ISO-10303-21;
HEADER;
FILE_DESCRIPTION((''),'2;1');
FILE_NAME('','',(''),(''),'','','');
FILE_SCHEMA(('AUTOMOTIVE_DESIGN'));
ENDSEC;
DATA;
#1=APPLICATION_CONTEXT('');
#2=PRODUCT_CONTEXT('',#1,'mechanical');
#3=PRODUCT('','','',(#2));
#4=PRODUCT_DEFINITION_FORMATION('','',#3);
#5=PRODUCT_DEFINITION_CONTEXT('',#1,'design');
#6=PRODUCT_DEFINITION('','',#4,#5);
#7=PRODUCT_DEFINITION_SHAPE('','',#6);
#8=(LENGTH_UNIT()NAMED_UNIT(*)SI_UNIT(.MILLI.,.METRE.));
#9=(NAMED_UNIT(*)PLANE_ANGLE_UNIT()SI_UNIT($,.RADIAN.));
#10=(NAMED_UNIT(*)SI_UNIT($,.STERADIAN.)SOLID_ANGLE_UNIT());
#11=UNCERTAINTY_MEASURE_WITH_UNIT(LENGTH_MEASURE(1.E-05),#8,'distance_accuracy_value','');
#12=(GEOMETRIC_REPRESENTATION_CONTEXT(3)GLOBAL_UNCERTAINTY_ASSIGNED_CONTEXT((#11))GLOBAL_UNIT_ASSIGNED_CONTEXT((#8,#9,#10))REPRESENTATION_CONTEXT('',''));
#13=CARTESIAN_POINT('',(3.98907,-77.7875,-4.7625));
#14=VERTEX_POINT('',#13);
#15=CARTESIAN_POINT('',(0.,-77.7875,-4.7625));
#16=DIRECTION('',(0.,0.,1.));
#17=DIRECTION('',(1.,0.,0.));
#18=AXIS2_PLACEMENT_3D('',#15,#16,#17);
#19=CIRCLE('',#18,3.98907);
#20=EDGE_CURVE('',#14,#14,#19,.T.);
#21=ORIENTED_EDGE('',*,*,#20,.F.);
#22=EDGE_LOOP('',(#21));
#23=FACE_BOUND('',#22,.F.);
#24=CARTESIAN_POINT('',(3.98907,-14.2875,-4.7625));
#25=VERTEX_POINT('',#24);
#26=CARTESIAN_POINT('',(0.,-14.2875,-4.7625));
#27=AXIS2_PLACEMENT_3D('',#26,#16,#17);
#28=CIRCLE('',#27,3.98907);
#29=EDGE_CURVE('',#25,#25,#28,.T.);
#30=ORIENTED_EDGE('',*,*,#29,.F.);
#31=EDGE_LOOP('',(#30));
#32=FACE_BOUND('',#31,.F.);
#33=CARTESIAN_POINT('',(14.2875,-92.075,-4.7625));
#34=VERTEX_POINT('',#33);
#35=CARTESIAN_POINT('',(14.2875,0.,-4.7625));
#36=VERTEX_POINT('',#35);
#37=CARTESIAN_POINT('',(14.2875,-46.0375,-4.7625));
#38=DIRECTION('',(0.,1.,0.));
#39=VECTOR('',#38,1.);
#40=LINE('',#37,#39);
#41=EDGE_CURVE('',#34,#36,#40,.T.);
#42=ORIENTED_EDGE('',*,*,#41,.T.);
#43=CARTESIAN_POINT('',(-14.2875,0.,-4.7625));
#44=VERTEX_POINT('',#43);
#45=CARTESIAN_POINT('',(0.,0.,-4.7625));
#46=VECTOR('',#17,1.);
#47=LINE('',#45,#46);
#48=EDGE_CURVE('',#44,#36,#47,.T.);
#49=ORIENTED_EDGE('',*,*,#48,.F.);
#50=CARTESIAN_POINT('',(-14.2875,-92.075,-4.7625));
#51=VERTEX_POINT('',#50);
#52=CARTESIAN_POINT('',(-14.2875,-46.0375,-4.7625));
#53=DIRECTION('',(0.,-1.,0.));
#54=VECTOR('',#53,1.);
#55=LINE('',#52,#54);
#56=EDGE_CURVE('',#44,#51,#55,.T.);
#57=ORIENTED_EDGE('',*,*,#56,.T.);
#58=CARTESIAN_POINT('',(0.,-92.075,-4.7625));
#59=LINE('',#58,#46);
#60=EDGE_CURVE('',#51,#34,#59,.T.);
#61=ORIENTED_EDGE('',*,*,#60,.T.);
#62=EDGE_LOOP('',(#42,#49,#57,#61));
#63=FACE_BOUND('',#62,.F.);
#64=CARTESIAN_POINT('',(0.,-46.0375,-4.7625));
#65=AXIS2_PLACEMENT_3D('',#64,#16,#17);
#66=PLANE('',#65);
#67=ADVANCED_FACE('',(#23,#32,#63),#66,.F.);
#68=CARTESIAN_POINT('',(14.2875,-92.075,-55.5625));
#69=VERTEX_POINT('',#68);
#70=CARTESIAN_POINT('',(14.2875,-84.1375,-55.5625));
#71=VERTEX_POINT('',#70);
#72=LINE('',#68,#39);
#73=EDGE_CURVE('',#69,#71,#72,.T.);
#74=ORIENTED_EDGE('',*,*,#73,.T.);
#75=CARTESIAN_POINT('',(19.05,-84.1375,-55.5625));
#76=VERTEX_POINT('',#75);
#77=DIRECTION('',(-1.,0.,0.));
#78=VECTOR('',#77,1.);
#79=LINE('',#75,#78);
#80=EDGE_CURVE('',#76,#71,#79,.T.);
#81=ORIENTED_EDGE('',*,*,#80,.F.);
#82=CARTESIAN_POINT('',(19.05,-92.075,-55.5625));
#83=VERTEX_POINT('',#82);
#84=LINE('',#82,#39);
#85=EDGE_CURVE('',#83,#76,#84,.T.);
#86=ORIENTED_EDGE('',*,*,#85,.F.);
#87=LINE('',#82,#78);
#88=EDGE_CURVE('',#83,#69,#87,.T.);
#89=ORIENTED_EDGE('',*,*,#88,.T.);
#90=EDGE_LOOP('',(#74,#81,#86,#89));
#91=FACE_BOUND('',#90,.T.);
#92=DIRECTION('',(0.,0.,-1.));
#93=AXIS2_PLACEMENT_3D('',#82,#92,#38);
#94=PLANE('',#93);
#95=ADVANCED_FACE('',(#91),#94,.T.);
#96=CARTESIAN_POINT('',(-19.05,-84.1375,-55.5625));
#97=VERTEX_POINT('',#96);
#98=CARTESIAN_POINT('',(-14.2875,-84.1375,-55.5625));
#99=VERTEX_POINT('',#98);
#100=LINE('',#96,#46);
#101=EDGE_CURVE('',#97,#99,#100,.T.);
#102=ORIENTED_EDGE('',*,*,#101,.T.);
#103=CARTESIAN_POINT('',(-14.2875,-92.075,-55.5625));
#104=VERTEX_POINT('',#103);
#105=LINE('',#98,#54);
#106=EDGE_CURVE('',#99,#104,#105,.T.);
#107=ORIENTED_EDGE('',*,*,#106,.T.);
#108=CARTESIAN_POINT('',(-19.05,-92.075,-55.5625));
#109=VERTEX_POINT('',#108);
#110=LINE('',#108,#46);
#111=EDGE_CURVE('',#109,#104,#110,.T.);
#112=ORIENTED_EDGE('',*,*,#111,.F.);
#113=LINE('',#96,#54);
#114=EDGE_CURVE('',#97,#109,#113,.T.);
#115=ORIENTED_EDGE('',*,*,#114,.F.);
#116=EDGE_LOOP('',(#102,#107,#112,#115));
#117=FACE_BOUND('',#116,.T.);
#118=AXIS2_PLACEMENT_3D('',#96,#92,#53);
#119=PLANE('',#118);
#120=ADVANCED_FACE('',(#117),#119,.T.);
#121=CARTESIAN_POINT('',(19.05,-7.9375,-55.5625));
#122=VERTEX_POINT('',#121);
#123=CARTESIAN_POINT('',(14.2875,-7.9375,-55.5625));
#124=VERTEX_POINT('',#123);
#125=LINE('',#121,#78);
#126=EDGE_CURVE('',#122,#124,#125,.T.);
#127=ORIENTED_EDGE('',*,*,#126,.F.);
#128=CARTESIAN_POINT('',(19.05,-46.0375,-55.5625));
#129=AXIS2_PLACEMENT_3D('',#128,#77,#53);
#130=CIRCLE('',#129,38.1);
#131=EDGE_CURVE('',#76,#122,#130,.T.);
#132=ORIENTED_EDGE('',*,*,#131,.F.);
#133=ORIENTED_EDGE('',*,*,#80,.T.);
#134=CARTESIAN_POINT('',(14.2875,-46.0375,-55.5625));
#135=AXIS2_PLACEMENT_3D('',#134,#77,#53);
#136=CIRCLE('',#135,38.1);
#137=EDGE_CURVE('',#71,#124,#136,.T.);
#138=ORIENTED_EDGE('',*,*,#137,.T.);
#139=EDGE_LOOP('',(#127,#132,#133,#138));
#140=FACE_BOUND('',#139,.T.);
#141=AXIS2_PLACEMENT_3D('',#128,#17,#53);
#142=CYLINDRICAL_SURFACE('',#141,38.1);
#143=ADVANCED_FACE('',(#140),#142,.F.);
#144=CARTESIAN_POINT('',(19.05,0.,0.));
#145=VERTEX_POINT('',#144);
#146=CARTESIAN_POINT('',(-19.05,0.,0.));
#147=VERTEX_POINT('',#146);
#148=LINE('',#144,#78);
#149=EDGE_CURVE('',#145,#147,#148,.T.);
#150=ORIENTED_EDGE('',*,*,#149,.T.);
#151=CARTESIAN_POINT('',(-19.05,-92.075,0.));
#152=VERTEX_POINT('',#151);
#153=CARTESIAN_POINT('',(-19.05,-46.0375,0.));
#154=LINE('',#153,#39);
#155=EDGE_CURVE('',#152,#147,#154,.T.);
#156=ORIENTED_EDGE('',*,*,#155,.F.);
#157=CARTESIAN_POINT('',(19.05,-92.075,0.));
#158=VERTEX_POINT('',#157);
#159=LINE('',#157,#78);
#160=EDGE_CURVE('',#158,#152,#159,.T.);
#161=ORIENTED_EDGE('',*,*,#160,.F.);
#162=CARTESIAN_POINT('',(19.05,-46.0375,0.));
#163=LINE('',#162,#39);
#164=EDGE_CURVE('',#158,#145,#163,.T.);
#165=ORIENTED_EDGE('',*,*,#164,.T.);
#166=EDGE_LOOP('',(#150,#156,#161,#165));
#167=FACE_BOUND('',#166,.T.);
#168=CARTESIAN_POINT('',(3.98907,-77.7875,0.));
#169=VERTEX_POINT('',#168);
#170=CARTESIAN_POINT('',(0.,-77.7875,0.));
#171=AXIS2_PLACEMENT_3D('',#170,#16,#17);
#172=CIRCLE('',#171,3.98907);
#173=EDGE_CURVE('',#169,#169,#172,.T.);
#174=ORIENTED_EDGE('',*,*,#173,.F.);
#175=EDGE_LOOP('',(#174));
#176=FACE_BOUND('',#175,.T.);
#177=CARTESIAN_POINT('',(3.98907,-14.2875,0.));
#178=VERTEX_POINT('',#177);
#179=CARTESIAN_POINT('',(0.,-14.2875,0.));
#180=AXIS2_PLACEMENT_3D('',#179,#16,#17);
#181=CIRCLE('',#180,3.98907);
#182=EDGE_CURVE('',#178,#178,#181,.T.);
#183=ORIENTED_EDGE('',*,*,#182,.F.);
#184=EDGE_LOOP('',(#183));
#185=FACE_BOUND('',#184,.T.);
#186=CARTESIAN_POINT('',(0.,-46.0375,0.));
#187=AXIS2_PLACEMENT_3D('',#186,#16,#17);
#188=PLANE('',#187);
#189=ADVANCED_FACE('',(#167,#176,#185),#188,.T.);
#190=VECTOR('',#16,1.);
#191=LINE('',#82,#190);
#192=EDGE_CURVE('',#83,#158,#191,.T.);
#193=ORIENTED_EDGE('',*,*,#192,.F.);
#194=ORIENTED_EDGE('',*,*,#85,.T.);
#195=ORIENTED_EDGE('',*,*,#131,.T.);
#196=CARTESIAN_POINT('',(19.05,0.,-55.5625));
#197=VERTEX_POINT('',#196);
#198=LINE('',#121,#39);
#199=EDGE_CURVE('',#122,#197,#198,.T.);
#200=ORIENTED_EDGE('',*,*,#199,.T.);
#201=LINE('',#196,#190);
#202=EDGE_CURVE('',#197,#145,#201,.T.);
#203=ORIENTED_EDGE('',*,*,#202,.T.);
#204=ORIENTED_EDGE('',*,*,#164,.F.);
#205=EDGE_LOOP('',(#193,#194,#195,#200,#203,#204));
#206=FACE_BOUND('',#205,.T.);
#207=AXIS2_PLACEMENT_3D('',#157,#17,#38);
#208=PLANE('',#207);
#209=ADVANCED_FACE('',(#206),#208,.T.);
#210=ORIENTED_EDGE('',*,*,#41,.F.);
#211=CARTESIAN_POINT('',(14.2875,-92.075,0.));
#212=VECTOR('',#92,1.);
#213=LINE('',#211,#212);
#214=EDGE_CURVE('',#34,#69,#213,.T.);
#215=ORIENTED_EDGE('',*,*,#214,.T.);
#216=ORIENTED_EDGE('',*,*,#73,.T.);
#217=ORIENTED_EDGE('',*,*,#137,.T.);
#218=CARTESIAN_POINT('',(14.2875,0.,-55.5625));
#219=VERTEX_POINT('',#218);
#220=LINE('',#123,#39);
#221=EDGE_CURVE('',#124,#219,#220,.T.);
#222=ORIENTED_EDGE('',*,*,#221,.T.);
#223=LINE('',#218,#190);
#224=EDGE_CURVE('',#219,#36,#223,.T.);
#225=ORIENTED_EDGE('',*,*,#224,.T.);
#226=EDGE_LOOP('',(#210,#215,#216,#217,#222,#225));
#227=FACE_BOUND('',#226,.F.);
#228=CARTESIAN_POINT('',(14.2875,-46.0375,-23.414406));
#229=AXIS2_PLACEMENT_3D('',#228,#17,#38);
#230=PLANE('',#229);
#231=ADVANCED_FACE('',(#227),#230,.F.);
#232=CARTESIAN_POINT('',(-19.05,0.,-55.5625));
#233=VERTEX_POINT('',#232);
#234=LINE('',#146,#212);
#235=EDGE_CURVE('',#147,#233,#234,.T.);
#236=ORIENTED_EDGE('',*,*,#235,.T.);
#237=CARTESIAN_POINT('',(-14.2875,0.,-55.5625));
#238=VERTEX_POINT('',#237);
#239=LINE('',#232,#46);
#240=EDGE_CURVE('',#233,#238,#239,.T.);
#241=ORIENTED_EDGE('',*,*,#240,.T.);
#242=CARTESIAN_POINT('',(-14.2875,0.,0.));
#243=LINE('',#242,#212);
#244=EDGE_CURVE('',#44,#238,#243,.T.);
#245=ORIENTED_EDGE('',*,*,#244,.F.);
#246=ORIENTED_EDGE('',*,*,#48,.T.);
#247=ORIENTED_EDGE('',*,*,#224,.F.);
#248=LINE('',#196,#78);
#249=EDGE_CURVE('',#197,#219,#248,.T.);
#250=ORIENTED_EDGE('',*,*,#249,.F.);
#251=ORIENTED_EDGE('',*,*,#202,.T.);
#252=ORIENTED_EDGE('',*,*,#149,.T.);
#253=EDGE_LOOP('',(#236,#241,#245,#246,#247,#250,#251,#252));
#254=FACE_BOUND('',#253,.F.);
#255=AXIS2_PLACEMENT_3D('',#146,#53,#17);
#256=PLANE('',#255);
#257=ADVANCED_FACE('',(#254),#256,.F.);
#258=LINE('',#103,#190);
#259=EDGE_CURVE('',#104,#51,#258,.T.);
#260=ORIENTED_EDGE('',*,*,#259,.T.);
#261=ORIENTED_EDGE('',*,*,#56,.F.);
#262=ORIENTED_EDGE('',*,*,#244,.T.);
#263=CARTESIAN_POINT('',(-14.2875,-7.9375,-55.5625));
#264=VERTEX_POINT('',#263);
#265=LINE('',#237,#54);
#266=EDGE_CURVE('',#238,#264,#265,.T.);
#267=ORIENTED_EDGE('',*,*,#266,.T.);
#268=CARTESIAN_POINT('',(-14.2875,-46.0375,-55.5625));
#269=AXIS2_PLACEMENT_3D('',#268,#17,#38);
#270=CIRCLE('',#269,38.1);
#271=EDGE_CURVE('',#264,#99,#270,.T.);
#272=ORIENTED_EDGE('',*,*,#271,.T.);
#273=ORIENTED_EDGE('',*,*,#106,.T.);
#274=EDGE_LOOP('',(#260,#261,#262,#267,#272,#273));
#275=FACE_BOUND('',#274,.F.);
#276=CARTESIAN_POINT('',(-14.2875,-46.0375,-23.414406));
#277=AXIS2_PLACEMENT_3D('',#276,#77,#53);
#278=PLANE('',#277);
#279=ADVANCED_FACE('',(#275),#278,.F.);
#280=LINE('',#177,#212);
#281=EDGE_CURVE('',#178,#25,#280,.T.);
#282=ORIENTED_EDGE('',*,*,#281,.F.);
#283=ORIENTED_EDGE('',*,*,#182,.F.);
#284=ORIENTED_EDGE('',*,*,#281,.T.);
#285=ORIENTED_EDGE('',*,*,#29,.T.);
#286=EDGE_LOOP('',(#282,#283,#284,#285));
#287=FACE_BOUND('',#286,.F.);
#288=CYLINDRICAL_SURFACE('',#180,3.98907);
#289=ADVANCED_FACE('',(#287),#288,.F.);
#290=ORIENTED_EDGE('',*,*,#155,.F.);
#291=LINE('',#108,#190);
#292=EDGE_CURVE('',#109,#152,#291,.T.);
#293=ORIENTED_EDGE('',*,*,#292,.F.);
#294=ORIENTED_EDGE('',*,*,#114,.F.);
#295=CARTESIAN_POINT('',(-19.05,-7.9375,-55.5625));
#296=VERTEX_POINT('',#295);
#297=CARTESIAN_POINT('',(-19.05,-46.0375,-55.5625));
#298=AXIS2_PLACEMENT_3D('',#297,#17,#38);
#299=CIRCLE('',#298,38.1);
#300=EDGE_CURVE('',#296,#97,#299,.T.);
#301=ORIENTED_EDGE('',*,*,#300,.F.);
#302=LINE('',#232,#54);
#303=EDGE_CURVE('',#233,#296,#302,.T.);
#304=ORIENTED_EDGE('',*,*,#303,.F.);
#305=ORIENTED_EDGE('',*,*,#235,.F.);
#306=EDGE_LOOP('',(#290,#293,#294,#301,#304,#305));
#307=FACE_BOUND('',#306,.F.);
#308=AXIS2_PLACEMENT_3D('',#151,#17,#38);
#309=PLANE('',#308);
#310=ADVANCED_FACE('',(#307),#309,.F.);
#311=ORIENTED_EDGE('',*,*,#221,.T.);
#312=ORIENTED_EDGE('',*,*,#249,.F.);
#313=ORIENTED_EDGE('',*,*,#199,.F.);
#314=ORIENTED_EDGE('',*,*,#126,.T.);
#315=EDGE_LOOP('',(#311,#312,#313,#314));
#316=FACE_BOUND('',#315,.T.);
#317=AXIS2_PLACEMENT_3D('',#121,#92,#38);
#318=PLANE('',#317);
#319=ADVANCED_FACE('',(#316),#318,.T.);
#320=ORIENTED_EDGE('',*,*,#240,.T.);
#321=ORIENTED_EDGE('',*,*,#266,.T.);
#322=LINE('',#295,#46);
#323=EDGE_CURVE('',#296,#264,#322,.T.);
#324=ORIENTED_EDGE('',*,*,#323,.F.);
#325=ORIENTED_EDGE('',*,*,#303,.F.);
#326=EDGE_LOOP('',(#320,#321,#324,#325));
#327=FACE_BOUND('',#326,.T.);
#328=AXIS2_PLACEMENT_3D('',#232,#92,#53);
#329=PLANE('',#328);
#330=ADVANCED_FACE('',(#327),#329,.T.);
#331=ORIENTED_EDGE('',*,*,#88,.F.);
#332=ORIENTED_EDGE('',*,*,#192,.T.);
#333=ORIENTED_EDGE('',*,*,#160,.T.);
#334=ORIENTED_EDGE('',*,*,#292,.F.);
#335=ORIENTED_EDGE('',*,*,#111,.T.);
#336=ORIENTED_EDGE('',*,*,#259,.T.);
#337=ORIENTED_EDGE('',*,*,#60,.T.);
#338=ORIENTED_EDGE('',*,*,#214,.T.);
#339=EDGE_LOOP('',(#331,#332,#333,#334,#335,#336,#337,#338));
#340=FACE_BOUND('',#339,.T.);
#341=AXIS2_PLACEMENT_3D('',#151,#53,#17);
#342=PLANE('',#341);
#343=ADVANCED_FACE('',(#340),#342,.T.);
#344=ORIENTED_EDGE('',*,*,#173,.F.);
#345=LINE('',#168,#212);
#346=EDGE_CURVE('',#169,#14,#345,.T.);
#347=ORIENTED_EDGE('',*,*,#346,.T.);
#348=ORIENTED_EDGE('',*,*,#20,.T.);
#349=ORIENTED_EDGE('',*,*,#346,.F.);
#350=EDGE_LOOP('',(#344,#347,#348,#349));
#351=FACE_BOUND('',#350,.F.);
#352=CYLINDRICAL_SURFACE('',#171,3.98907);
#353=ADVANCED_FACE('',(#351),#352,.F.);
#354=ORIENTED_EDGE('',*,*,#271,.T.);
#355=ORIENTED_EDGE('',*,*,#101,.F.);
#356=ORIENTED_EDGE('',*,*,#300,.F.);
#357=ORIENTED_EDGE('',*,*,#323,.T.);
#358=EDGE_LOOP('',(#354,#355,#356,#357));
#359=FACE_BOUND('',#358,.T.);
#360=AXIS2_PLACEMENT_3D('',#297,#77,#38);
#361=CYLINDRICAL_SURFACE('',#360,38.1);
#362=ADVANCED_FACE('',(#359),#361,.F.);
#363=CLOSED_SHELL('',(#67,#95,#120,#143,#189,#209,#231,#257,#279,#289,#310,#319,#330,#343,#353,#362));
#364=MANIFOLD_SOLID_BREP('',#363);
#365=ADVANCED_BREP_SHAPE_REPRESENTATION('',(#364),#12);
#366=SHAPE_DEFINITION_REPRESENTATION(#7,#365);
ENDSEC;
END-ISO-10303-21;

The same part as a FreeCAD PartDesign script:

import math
import FreeCAD as App
import Part
import Sketcher

V = App.Vector
Q = App.Units.Quantity

doc = App.newDocument("Part")
body = doc.addObject("PartDesign::Body", "Body")

sketch1 = doc.addObject("Sketcher::SketchObject", "Sketch")
body.addObject(sketch1)
sketch1.AttachmentSupport = (doc.XY_Plane, [""])
sketch1.MapMode = "FlatFace"
sketch1.addGeometry(Part.LineSegment(V(-19.05, 0, 0), V(-19.05, -92.075, 0)), False)
sketch1.addGeometry(Part.LineSegment(V(-19.05, -92.075, 0), V(19.05, -92.075, 0)), False)
sketch1.addGeometry(Part.LineSegment(V(19.05, -92.075, 0), V(19.05, 0, 0)), False)
sketch1.addGeometry(Part.LineSegment(V(19.05, 0, 0), V(-19.05, 0, 0)), False)
sketch1.addConstraint(Sketcher.Constraint("Coincident", 0, 2, 1, 1))
sketch1.addConstraint(Sketcher.Constraint("Coincident", 1, 2, 2, 1))
sketch1.addConstraint(Sketcher.Constraint("Coincident", 2, 2, 3, 1))
sketch1.addConstraint(Sketcher.Constraint("Coincident", 3, 2, 0, 1))
sketch1.addConstraint(Sketcher.Constraint("Vertical", 0))
sketch1.addConstraint(Sketcher.Constraint("Horizontal", 1))
sketch1.addConstraint(Sketcher.Constraint("Vertical", 2))
sketch1.addConstraint(Sketcher.Constraint("Horizontal", 3))
sketch1.addConstraint(Sketcher.Constraint("Symmetric", 2, 2, 3, 2, -1, 1))
sketch1.addConstraint(Sketcher.Constraint("DistanceX", 1, 1, 1, 2, Q("1.5 in")))
sketch1.addConstraint(Sketcher.Constraint("DistanceY", 0, 2, 0, 1, Q("3.625 in")))
pad1 = doc.addObject("PartDesign::Pad", "Pad")
body.addObject(pad1)
pad1.Profile = sketch1
pad1.Length = Q("0.1875 in")
pad1.Reversed = True

sketch2 = doc.addObject("Sketcher::SketchObject", "Sketch001")
body.addObject(sketch2)
sketch2.AttachmentSupport = (doc.YZ_Plane, [""])
sketch2.MapMode = "FlatFace"
sketch2.AttachmentOffset = App.Placement(V(0, 0, -0.75 * 25.4), App.Rotation())
sketch2.addGeometry(Part.LineSegment(V(-92.075, 0, 0), V(0, 0, 0)), False)
sketch2.addGeometry(Part.LineSegment(V(0, 0, 0), V(0, -55.5625, 0)), False)
sketch2.addGeometry(Part.LineSegment(V(0, -55.5625, 0), V(-7.9375, -55.5625, 0)), False)
sketch2.addGeometry(Part.ArcOfCircle(Part.Circle(V(-46.0375, -55.5625, 0), V(0, 0, 1), 38.1), math.radians(0), math.radians(180)), False)
sketch2.addGeometry(Part.LineSegment(V(-84.1375, -55.5625, 0), V(-92.075, -55.5625, 0)), False)
sketch2.addGeometry(Part.LineSegment(V(-92.075, -55.5625, 0), V(-92.075, 0, 0)), False)
sketch2.addConstraint(Sketcher.Constraint("Coincident", 0, 2, 1, 1))
sketch2.addConstraint(Sketcher.Constraint("Coincident", 1, 2, 2, 1))
sketch2.addConstraint(Sketcher.Constraint("Coincident", 2, 2, 3, 1))
sketch2.addConstraint(Sketcher.Constraint("Coincident", 3, 2, 4, 1))
sketch2.addConstraint(Sketcher.Constraint("Coincident", 4, 2, 5, 1))
sketch2.addConstraint(Sketcher.Constraint("Coincident", 5, 2, 0, 1))
sketch2.addConstraint(Sketcher.Constraint("Horizontal", 0))
sketch2.addConstraint(Sketcher.Constraint("Vertical", 1))
sketch2.addConstraint(Sketcher.Constraint("Horizontal", 2))
sketch2.addConstraint(Sketcher.Constraint("Horizontal", 4))
sketch2.addConstraint(Sketcher.Constraint("Vertical", 5))
sketch2.addConstraint(Sketcher.Constraint("Coincident", 0, 2, -1, 1))
sketch2.addConstraint(Sketcher.Constraint("Horizontal", 3, 3, 1, 2))
sketch2.addConstraint(Sketcher.Constraint("Horizontal", 2, 2, 3, 2))
sketch2.addConstraint(Sketcher.Constraint("Equal", 2, 4))
sketch2.addConstraint(Sketcher.Constraint("Radius", 3, Q("1.5 in")))
sketch2.addConstraint(Sketcher.Constraint("DistanceX", 0, 1, 0, 2, Q("3.625 in")))
sketch2.addConstraint(Sketcher.Constraint("DistanceY", 1, 2, 1, 1, Q("2.1875 in")))
pad2 = doc.addObject("PartDesign::Pad", "Pad001")
body.addObject(pad2)
pad2.Profile = sketch2
pad2.Length = Q("0.1875 in")

sketch3 = doc.addObject("Sketcher::SketchObject", "Sketch002")
body.addObject(sketch3)
sketch3.AttachmentSupport = (doc.YZ_Plane, [""])
sketch3.MapMode = "FlatFace"
sketch3.AttachmentOffset = App.Placement(V(0, 0, 0.75 * 25.4), App.Rotation())
sketch3.addGeometry(Part.LineSegment(V(0, 0, 0), V(-92.075, 0, 0)), False)
sketch3.addGeometry(Part.LineSegment(V(-92.075, 0, 0), V(-92.075, -55.5625, 0)), False)
sketch3.addGeometry(Part.LineSegment(V(-92.075, -55.5625, 0), V(-84.1375, -55.5625, 0)), False)
sketch3.addGeometry(Part.ArcOfCircle(Part.Circle(V(-46.0375, -55.5625, 0), V(0, 0, 1), 38.1), math.radians(0), math.radians(180)), False)
sketch3.addGeometry(Part.LineSegment(V(-7.9375, -55.5625, 0), V(0, -55.5625, 0)), False)
sketch3.addGeometry(Part.LineSegment(V(0, -55.5625, 0), V(0, 0, 0)), False)
sketch3.addConstraint(Sketcher.Constraint("Coincident", 0, 2, 1, 1))
sketch3.addConstraint(Sketcher.Constraint("Coincident", 1, 2, 2, 1))
sketch3.addConstraint(Sketcher.Constraint("Coincident", 2, 2, 3, 2))
sketch3.addConstraint(Sketcher.Constraint("Coincident", 3, 1, 4, 1))
sketch3.addConstraint(Sketcher.Constraint("Coincident", 4, 2, 5, 1))
sketch3.addConstraint(Sketcher.Constraint("Coincident", 5, 2, 0, 1))
sketch3.addConstraint(Sketcher.Constraint("Horizontal", 0))
sketch3.addConstraint(Sketcher.Constraint("Vertical", 1))
sketch3.addConstraint(Sketcher.Constraint("Horizontal", 2))
sketch3.addConstraint(Sketcher.Constraint("Horizontal", 4))
sketch3.addConstraint(Sketcher.Constraint("Vertical", 5))
sketch3.addConstraint(Sketcher.Constraint("Coincident", 5, 2, -1, 1))
sketch3.addConstraint(Sketcher.Constraint("Horizontal", 3, 3, 1, 2))
sketch3.addConstraint(Sketcher.Constraint("Horizontal", 2, 2, 3, 1))
sketch3.addConstraint(Sketcher.Constraint("Equal", 2, 4))
sketch3.addConstraint(Sketcher.Constraint("Radius", 3, Q("1.5 in")))
sketch3.addConstraint(Sketcher.Constraint("DistanceX", 0, 2, 0, 1, Q("3.625 in")))
sketch3.addConstraint(Sketcher.Constraint("DistanceY", 1, 2, 1, 1, Q("2.1875 in")))
pad3 = doc.addObject("PartDesign::Pad", "Pad002")
body.addObject(pad3)
pad3.Profile = sketch3
pad3.Length = Q("0.1875 in")
pad3.Reversed = True

sketch4 = doc.addObject("Sketcher::SketchObject", "Sketch003")
body.addObject(sketch4)
sketch4.AttachmentSupport = (doc.XY_Plane, [""])
sketch4.MapMode = "FlatFace"
sketch4.addGeometry(Part.Circle(V(0, -14.2875, 0), V(0, 0, 1), 3.98907), False)
sketch4.addGeometry(Part.Circle(V(0, -77.7875, 0), V(0, 0, 1), 3.98907), False)
sketch4.addConstraint(Sketcher.Constraint("Equal", 0, 1))
sketch4.addConstraint(Sketcher.Constraint("PointOnObject", 0, 3, -2))
sketch4.addConstraint(Sketcher.Constraint("PointOnObject", 1, 3, -2))
sketch4.addConstraint(Sketcher.Constraint("Diameter", 0, Q("0.3141 in")))
sketch4.addConstraint(Sketcher.Constraint("DistanceY", 1, 3, 0, 3, Q("2.5 in")))
sketch4.addConstraint(Sketcher.Constraint("DistanceY", 0, 3, -1, 1, Q("0.5625 in")))
pocket1 = doc.addObject("PartDesign::Pocket", "Pocket")
body.addObject(pocket1)
pocket1.Profile = sketch4
pocket1.Type = "ThroughAll"

doc.recompute()
